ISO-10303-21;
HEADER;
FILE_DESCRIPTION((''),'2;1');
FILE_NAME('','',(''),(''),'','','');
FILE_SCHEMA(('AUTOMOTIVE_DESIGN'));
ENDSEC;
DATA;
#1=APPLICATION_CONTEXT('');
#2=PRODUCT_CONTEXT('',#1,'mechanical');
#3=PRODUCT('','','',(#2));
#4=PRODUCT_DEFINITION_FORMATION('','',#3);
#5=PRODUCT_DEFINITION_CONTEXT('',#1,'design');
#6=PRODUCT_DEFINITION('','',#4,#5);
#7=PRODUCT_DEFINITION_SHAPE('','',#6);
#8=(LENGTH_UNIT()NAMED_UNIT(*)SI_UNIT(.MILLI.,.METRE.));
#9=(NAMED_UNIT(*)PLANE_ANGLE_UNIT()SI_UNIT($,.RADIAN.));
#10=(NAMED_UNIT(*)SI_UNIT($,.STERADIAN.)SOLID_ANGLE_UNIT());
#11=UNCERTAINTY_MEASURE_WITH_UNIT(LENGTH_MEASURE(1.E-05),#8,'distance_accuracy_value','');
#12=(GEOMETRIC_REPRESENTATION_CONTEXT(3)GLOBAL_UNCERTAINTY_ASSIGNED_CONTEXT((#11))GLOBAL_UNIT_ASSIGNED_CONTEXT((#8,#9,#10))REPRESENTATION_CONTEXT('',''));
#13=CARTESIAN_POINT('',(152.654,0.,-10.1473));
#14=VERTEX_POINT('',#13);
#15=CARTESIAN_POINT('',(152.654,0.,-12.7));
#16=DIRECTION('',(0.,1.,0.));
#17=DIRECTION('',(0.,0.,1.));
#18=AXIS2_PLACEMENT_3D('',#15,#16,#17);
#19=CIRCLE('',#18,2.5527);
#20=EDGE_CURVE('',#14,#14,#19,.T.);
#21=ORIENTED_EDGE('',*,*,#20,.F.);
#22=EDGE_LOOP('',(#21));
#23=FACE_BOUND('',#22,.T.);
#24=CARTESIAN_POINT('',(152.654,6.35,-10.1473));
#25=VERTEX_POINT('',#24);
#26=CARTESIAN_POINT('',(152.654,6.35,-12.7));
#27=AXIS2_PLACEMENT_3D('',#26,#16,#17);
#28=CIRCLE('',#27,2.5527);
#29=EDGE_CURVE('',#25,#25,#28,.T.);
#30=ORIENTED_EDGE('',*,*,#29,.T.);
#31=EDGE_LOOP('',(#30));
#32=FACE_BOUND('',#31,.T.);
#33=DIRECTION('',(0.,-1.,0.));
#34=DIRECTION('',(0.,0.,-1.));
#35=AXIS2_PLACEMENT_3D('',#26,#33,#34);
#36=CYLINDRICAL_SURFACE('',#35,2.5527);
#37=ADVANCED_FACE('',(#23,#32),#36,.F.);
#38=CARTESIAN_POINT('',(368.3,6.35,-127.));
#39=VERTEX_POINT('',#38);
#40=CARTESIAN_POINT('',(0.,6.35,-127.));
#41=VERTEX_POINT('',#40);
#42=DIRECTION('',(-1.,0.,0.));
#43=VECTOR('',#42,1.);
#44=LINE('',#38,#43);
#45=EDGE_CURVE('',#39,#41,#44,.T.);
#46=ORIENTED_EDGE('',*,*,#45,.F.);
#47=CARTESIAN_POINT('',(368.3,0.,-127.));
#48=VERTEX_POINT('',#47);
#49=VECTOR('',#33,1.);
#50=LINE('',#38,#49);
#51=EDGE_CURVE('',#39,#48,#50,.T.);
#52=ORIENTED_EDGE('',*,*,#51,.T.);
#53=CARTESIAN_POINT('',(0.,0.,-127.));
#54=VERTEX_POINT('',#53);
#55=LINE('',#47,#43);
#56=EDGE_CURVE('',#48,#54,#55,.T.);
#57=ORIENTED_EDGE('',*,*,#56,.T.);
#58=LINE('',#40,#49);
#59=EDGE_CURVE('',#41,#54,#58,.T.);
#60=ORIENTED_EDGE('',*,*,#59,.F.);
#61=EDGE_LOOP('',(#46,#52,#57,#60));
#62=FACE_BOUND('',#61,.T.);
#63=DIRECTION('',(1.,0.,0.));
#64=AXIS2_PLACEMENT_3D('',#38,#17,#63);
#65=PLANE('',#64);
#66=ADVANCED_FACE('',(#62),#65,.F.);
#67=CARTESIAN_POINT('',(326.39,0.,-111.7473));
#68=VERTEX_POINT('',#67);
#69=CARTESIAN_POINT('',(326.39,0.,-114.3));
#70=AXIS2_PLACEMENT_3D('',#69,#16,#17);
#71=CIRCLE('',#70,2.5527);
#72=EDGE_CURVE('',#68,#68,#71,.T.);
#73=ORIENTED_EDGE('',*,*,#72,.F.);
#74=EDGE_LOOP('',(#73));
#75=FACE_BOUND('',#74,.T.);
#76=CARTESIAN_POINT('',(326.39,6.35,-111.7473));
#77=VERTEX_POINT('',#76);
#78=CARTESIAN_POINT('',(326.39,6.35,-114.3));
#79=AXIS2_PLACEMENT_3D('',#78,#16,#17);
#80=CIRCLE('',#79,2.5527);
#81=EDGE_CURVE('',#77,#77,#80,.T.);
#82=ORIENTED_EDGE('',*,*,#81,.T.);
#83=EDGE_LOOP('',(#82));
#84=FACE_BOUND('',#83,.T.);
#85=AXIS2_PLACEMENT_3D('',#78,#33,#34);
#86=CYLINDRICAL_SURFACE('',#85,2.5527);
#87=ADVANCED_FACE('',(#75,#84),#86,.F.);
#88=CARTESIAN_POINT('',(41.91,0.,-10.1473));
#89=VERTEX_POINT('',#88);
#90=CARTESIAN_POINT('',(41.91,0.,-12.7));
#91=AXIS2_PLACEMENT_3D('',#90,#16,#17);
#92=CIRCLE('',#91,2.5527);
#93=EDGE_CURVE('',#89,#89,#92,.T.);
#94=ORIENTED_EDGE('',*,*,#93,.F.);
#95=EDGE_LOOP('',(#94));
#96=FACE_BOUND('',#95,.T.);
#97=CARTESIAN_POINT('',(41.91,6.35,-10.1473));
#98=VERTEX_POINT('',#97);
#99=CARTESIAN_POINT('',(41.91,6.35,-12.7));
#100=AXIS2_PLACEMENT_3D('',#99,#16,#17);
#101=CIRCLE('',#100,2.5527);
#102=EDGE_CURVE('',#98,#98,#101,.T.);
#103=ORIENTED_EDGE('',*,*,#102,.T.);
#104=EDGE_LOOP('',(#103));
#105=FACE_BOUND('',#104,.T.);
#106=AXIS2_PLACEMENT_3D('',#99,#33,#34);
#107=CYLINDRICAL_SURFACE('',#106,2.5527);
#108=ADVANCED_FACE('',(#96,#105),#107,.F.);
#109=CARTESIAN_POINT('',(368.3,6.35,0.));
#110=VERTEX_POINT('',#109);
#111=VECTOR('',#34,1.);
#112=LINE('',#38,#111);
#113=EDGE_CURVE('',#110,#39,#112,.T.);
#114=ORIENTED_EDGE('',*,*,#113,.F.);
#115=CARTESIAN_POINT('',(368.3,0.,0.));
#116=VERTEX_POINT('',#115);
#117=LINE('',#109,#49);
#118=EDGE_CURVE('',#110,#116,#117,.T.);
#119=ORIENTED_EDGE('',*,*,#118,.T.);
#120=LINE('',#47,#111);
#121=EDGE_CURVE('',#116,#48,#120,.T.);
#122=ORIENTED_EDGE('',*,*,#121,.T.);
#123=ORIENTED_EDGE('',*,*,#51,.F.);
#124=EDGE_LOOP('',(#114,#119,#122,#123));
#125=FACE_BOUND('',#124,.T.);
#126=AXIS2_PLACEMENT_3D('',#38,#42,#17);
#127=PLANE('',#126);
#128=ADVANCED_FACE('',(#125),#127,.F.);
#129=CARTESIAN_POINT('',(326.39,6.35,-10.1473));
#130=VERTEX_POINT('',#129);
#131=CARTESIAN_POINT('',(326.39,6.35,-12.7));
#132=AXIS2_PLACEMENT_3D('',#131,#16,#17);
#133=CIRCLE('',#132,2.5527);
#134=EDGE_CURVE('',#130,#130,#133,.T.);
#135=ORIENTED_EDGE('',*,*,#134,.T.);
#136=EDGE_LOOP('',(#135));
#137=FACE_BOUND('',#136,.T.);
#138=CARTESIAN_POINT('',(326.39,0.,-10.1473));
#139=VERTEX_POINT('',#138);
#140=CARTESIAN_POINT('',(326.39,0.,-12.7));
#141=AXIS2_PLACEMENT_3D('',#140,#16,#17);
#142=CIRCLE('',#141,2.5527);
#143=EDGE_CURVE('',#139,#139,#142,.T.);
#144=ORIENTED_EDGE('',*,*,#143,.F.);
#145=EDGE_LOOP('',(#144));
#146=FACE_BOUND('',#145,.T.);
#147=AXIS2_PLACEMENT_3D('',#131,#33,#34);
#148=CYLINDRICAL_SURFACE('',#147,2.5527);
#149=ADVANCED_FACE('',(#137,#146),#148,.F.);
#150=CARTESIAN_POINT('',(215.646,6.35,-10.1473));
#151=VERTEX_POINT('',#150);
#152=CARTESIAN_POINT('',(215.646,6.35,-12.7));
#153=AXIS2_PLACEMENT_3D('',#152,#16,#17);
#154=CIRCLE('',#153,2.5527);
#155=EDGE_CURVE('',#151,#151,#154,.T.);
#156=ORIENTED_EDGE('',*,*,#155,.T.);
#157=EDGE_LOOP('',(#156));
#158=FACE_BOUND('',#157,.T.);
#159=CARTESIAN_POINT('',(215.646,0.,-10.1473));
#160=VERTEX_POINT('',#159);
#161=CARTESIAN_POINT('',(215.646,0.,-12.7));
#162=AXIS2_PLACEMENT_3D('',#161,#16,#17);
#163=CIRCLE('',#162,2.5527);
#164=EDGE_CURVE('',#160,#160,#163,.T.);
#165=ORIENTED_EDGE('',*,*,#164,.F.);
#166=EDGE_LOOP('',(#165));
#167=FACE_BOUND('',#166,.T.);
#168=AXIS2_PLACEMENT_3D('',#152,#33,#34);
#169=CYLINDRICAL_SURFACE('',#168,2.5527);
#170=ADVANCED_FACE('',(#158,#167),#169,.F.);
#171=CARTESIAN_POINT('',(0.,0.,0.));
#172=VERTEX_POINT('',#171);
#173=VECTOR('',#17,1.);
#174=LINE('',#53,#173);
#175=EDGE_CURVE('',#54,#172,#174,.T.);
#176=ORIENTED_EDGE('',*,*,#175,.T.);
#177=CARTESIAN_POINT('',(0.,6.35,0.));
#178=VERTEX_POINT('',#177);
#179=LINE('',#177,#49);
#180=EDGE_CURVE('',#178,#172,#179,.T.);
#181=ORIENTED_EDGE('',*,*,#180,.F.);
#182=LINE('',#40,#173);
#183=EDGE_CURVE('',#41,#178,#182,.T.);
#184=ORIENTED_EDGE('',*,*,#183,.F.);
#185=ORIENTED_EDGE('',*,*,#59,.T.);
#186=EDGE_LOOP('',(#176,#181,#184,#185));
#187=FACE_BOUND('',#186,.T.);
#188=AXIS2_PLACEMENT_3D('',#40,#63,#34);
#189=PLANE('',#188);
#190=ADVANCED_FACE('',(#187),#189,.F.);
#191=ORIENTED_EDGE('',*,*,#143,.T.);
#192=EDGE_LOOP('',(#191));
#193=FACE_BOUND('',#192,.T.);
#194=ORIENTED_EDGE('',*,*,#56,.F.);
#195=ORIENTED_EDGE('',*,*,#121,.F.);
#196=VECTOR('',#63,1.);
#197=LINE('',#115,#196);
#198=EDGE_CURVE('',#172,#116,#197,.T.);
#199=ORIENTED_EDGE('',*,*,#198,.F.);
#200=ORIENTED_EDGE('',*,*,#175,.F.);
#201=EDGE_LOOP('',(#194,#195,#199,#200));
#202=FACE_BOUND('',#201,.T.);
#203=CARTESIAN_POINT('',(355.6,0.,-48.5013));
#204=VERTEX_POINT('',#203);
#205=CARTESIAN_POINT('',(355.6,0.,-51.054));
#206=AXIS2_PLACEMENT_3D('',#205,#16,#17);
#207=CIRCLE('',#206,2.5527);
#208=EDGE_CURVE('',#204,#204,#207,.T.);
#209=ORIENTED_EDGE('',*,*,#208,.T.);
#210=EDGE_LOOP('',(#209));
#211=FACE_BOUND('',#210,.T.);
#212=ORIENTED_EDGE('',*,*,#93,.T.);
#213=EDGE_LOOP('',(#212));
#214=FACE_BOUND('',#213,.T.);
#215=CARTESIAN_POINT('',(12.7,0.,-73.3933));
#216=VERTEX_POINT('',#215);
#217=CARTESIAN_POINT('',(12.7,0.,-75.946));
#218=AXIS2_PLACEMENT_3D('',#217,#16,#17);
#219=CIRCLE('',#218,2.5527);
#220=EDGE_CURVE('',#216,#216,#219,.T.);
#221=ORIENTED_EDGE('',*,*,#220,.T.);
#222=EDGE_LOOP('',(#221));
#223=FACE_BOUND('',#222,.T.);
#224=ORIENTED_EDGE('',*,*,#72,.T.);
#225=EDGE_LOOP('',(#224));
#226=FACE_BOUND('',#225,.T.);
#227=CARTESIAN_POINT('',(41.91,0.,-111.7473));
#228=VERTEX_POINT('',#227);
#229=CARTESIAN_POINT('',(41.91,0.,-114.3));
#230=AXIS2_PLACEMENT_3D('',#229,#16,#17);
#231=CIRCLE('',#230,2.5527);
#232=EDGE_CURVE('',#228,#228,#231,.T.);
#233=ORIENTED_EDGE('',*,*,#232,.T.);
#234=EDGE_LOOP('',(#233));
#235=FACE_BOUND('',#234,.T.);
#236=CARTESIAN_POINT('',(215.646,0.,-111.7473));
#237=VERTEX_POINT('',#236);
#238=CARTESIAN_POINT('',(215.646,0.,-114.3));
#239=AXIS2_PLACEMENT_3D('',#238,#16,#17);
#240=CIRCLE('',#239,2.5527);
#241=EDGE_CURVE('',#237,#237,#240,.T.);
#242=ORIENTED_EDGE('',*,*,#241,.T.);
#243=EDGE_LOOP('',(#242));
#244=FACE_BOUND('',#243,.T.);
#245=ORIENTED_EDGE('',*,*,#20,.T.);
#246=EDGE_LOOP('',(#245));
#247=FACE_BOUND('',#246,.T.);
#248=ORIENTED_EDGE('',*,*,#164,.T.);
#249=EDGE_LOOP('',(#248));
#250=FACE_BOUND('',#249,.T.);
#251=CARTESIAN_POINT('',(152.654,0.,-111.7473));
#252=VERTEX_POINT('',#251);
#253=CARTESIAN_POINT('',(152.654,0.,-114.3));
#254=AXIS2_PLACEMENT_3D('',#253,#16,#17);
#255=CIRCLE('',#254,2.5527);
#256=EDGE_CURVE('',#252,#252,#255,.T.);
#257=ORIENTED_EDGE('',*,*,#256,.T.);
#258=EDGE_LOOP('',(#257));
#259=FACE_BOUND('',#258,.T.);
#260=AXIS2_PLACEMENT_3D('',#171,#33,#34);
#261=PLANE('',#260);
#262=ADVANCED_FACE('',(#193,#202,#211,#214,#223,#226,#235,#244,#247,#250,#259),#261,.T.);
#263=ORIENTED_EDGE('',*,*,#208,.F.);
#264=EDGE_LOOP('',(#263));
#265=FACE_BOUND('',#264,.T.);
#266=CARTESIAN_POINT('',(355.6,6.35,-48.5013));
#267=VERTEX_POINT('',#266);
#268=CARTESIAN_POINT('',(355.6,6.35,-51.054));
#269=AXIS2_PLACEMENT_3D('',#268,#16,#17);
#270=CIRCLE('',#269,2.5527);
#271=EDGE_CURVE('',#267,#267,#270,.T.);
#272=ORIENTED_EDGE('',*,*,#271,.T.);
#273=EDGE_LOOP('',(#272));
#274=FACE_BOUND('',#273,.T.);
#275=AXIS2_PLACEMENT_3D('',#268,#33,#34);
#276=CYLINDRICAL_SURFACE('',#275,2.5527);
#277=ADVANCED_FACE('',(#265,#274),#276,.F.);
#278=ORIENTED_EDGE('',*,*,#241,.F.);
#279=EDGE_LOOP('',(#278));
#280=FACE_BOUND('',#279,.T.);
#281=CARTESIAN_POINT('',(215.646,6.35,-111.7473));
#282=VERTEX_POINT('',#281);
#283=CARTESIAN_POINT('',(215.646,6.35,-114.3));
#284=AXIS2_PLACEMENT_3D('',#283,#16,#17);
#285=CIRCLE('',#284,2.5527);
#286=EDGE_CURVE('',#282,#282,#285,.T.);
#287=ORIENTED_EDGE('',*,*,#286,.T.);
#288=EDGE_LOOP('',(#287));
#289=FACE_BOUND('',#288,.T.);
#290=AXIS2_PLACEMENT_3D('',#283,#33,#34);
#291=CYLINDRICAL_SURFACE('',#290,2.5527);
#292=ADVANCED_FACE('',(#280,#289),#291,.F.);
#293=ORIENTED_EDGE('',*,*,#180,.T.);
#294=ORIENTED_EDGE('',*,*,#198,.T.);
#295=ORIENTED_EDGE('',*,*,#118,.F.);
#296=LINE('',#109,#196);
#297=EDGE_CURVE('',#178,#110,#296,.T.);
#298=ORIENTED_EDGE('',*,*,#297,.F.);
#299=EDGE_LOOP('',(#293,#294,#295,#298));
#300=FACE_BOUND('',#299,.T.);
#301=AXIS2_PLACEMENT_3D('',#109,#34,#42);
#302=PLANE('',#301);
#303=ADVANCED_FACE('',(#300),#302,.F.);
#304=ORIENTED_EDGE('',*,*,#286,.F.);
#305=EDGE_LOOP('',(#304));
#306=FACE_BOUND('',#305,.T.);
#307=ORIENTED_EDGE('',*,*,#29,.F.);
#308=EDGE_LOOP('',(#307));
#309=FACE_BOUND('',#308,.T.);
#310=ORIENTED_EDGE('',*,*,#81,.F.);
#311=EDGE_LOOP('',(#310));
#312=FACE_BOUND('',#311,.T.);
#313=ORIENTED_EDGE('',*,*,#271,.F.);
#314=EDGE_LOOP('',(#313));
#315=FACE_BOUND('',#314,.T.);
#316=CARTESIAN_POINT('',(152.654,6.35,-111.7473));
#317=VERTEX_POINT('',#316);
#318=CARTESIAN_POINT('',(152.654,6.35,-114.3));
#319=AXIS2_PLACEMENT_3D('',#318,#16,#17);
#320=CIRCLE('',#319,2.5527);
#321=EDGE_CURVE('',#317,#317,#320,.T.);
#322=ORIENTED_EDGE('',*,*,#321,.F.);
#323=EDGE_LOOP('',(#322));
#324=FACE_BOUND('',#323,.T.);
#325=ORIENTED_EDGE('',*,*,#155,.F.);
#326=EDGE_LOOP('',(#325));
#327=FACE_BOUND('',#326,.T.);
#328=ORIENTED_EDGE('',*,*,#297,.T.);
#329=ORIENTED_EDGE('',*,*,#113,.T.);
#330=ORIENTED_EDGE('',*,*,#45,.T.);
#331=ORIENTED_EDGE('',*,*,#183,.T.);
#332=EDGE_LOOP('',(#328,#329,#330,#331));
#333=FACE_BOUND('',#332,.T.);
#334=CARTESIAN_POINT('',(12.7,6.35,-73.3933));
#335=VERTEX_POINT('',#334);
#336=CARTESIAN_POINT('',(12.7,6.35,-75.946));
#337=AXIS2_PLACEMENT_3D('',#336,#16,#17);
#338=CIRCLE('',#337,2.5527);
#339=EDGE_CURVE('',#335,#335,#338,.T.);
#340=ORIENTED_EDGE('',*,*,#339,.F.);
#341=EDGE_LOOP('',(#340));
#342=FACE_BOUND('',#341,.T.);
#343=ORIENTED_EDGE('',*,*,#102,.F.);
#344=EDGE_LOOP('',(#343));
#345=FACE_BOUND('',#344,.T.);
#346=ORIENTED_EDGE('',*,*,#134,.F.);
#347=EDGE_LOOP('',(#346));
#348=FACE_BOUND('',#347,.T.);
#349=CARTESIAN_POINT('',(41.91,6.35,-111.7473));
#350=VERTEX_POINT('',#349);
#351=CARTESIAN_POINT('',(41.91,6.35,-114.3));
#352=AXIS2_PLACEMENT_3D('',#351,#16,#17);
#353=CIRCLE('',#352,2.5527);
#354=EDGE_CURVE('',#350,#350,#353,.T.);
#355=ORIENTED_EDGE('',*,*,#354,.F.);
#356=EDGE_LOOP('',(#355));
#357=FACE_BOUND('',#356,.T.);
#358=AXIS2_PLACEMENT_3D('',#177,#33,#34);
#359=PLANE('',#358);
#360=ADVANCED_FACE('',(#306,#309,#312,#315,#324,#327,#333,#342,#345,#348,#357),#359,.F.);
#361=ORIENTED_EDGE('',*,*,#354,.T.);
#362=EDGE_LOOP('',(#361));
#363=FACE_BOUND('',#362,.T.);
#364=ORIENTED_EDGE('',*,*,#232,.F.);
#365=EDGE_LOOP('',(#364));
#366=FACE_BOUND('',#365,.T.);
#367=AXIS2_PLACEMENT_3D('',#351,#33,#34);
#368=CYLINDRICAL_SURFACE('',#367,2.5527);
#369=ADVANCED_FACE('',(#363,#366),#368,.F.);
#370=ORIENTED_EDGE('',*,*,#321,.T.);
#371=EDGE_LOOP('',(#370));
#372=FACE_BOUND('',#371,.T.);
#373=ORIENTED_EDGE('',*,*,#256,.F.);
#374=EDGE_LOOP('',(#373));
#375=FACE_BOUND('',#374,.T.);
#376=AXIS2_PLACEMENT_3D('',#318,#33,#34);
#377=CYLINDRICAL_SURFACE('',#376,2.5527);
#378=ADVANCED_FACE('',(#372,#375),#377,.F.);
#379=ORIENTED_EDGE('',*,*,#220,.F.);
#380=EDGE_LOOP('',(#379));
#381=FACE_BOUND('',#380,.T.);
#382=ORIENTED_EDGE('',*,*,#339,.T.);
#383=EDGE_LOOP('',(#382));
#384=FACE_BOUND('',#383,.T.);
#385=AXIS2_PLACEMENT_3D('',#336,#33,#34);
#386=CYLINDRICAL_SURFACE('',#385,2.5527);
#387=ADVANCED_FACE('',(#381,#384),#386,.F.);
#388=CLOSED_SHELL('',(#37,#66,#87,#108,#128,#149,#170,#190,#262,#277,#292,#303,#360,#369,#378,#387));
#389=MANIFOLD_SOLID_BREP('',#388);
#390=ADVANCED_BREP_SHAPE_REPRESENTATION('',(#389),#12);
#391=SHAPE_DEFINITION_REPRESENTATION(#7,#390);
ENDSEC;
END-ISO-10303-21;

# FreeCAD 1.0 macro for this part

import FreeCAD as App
import Part
import Sketcher
Q = App.Units.Quantity

doc = App.newDocument("Part")
body = doc.addObject("PartDesign::Body", "Body")

# Sketch on XZ plane
sketch1 = body.newObject("Sketcher::SketchObject", "Sketch")
sketch1.AttachmentSupport = (doc.getObject("XZ_Plane"), [""])
sketch1.MapMode = "FlatFace"
sketch1.addGeometry([
    Part.LineSegment(App.Vector(0, -127, 0), App.Vector(0, 0, 0)),  # 0
    Part.LineSegment(App.Vector(0, 0, 0), App.Vector(368.3, 0, 0)),  # 1
    Part.LineSegment(App.Vector(368.3, 0, 0), App.Vector(368.3, -127, 0)),  # 2
    Part.LineSegment(App.Vector(368.3, -127, 0), App.Vector(0, -127, 0)),  # 3
    Part.Circle(App.Vector(41.91, -12.7, 0), App.Vector(0, 0, 1), 2.5527),  # 4
    Part.Circle(App.Vector(152.654, -12.7, 0), App.Vector(0, 0, 1), 2.5527),  # 5
    Part.Circle(App.Vector(215.646, -12.7, 0), App.Vector(0, 0, 1), 2.5527),  # 6
    Part.Circle(App.Vector(326.39, -12.7, 0), App.Vector(0, 0, 1), 2.5527),  # 7
    Part.Circle(App.Vector(355.6, -51.054, 0), App.Vector(0, 0, 1), 2.5527),  # 8
    Part.Circle(App.Vector(12.7, -75.946, 0), App.Vector(0, 0, 1), 2.5527),  # 9
    Part.Circle(App.Vector(41.91, -114.3, 0), App.Vector(0, 0, 1), 2.5527),  # 10
    Part.Circle(App.Vector(152.654, -114.3, 0), App.Vector(0, 0, 1), 2.5527),  # 11
    Part.Circle(App.Vector(215.646, -114.3, 0), App.Vector(0, 0, 1), 2.5527),  # 12
    Part.Circle(App.Vector(326.39, -114.3, 0), App.Vector(0, 0, 1), 2.5527),  # 13
], False)
sketch1.addConstraint([
    Sketcher.Constraint("Coincident", 0, 2, 1, 1),
    Sketcher.Constraint("Coincident", 1, 2, 2, 1),
    Sketcher.Constraint("Coincident", 2, 2, 3, 1),
    Sketcher.Constraint("Coincident", 3, 2, 0, 1),
    Sketcher.Constraint("Vertical", 0),
    Sketcher.Constraint("Horizontal", 1),
    Sketcher.Constraint("Vertical", 2),
    Sketcher.Constraint("Horizontal", 3),
    Sketcher.Constraint("Coincident", 0, 2, -1, 1),
    Sketcher.Constraint("Equal", 4, 5),
    Sketcher.Constraint("Equal", 5, 6),
    Sketcher.Constraint("Equal", 6, 7),
    Sketcher.Constraint("Equal", 7, 8),
    Sketcher.Constraint("Equal", 8, 9),
    Sketcher.Constraint("Equal", 9, 10),
    Sketcher.Constraint("Equal", 10, 11),
    Sketcher.Constraint("Equal", 11, 12),
    Sketcher.Constraint("Equal", 12, 13),
    Sketcher.Constraint("Horizontal", 4, 3, 5, 3),
    Sketcher.Constraint("Horizontal", 5, 3, 6, 3),
    Sketcher.Constraint("Horizontal", 6, 3, 7, 3),
    Sketcher.Constraint("Horizontal", 10, 3, 11, 3),
    Sketcher.Constraint("Horizontal", 11, 3, 12, 3),
    Sketcher.Constraint("Horizontal", 12, 3, 13, 3),
    Sketcher.Constraint("Vertical", 4, 3, 10, 3),
    Sketcher.Constraint("Vertical", 5, 3, 11, 3),
    Sketcher.Constraint("Vertical", 6, 3, 12, 3),
    Sketcher.Constraint("Vertical", 7, 3, 13, 3),
    Sketcher.Constraint("DistanceY", 0, 1, 0, 2, Q("5 in")),
    Sketcher.Constraint("Diameter", 4, Q("0.201 in")),
    Sketcher.Constraint("DistanceX", 1, 1, 1, 2, Q("14.5 in")),
    Sketcher.Constraint("DistanceX", -1, 1, 8, 3, Q("14 in")),
    Sketcher.Constraint("DistanceY", 10, 3, 4, 3, Q("4 in")),
    Sketcher.Constraint("DistanceY", 4, 3, -1, 1, Q("0.5 in")),
    Sketcher.Constraint("DistanceX", -1, 1, 9, 3, Q("0.5 in")),
    Sketcher.Constraint("DistanceX", 4, 3, 7, 3, Q("11.2 in")),
    Sketcher.Constraint("DistanceX", -1, 1, 4, 3, Q("1.65 in")),
    Sketcher.Constraint("DistanceX", -1, 1, 5, 3, Q("6.01 in")),
    Sketcher.Constraint("DistanceX", -1, 1, 6, 3, Q("8.49 in")),
    Sketcher.Constraint("DistanceY", 8, 3, -1, 1, Q("2.01 in")),
    Sketcher.Constraint("DistanceY", 9, 3, -1, 1, Q("2.99 in")),
])
pad1 = body.newObject("PartDesign::Pad", "Pad")
pad1.Profile = sketch1
pad1.Length = Q("0.25 in")
pad1.Reversed = True

doc.recompute()
